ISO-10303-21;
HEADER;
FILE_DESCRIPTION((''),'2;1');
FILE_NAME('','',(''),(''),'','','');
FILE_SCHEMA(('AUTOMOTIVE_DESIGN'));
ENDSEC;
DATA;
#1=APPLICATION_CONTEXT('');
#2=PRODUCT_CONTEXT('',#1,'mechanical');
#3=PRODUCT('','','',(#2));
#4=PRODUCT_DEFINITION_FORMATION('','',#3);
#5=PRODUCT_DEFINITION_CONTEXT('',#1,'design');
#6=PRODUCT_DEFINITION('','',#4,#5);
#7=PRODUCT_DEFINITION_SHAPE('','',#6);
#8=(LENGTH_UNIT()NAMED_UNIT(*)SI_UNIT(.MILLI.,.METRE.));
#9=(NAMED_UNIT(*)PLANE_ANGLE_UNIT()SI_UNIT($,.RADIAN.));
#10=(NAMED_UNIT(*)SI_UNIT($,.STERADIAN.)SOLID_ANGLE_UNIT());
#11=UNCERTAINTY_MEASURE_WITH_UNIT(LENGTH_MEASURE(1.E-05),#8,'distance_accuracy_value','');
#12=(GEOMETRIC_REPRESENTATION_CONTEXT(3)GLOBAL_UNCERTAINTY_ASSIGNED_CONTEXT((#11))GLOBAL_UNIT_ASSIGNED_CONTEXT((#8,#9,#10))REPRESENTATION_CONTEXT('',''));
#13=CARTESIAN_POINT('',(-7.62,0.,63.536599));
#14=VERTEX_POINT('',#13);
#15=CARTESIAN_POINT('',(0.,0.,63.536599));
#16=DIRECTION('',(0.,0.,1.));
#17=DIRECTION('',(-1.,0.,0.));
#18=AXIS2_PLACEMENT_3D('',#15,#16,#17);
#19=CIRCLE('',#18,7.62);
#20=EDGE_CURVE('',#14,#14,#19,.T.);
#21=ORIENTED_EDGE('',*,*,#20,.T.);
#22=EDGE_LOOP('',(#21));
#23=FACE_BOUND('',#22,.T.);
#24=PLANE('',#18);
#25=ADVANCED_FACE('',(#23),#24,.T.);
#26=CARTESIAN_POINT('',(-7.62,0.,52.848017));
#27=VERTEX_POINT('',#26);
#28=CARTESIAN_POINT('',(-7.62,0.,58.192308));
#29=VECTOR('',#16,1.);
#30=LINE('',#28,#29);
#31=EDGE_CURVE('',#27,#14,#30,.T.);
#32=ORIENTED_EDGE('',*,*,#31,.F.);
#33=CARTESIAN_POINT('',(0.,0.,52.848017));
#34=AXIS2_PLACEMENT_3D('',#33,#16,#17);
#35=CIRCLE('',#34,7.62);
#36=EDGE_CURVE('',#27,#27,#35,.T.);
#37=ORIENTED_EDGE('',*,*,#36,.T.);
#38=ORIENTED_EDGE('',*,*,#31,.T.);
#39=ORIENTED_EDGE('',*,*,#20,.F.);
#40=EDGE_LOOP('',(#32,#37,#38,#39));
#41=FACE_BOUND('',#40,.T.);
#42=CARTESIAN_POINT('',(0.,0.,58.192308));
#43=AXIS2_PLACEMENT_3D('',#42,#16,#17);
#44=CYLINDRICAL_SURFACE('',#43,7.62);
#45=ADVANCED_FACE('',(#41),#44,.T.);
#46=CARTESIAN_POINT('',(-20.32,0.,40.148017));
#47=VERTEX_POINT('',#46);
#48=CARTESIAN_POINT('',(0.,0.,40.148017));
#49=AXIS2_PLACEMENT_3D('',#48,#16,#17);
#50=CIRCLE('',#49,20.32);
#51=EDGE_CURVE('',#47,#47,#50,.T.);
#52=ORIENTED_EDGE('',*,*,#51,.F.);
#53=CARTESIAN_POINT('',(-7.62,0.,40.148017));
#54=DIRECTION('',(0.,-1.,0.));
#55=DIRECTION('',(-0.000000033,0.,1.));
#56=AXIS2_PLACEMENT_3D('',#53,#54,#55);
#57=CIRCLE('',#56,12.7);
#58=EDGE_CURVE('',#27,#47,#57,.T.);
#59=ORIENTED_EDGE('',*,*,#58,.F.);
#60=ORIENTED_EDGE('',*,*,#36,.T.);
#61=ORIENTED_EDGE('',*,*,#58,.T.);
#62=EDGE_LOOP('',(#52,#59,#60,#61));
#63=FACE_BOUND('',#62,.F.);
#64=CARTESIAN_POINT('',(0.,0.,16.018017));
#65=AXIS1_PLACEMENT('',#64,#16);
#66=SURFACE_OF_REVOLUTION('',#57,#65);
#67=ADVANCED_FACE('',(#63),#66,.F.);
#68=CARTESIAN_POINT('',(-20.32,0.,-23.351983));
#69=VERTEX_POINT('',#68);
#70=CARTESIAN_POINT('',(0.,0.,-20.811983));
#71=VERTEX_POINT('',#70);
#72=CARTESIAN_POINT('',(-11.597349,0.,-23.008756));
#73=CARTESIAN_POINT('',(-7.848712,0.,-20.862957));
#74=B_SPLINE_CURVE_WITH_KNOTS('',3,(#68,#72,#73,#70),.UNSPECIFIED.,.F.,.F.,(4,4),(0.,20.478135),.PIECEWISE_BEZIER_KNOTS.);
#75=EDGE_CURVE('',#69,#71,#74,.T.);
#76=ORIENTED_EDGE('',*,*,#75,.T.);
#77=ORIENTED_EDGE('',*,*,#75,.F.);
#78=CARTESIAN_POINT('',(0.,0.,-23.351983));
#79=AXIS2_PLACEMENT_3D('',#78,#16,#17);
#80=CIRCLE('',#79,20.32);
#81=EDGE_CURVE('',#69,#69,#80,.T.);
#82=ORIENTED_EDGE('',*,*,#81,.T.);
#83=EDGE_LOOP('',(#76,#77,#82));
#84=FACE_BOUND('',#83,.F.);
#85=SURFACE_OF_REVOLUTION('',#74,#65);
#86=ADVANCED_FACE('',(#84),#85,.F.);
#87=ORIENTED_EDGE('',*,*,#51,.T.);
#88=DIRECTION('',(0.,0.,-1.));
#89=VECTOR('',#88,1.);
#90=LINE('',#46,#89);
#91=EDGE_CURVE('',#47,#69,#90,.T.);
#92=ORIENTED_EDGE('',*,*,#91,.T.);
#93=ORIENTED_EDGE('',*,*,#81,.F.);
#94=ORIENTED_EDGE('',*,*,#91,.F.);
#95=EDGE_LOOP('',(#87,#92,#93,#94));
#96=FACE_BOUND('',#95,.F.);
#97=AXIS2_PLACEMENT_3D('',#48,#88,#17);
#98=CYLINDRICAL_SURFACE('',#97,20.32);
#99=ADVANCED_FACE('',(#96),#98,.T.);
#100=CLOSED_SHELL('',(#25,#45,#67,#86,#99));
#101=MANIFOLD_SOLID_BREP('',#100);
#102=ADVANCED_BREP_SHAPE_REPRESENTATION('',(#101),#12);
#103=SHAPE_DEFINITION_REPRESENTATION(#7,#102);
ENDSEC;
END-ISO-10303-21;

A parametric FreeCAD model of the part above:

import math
import FreeCAD as App
import Part
import Sketcher

V = App.Vector
Q = App.Units.Quantity

doc = App.newDocument("Part")
body = doc.addObject("PartDesign::Body", "Body")

# Sketch on XZ plane
sketch1 = doc.addObject("Sketcher::SketchObject", "Sketch")
body.addObject(sketch1)
sketch1.AttachmentSupport = (doc.XZ_Plane, [""])
sketch1.MapMode = "FlatFace"
sketch1.addGeometry([
    Part.BSplineCurve([V(-20.32, -23.351983, 0), V(-11.597349, -23.008756, 0), V(-7.848712, -20.862957, 0), V(0, -20.811983, 0)], [4, 4], [0, 20.478135], False, 3, [1, 1, 1, 1], False),  # 0
    Part.LineSegment(V(0, -20.811983, 0), V(0, 63.536599, 0)),  # 1
    Part.LineSegment(V(0, 63.536599, 0), V(-7.62, 63.536599, 0)),  # 2
    Part.LineSegment(V(-7.62, 63.536599, 0), V(-7.62, 52.848017, 0)),  # 3
    Part.ArcOfCircle(Part.Circle(V(-7.62, 40.148017, 0), V(0, 0, 1), 12.7), math.radians(90.000002), math.radians(179.999998)),  # 4
    Part.LineSegment(V(-20.32, 40.148017, 0), V(-20.32, -23.351983, 0)),  # 5
], False)
sketch1.addConstraint([
    Sketcher.Constraint("Block", 0),
    Sketcher.Constraint("Coincident", 0, 2, 1, 1),
    Sketcher.Constraint("Coincident", 1, 2, 2, 1),
    Sketcher.Constraint("Coincident", 2, 2, 3, 1),
    Sketcher.Constraint("Coincident", 3, 2, 4, 1),
    Sketcher.Constraint("Tangent", 4, 2, 5, 1),
    Sketcher.Constraint("Coincident", 5, 2, 0, 1),
    Sketcher.Constraint("Vertical", 1),
    Sketcher.Constraint("Horizontal", 2),
    Sketcher.Constraint("Vertical", 3),
    Sketcher.Constraint("Vertical", 5),
    Sketcher.Constraint("Vertical", 4, 3, 2, 2),
    Sketcher.Constraint("Radius", 4, Q("0.5 in")),
    Sketcher.Constraint("DistanceY", 5, 2, 5, 1, Q("2.5 in")),
    Sketcher.Constraint("DistanceY", -1, 1, 1, 2, Q("63.536599 mm")),
])
revolution = doc.addObject("PartDesign::Revolution", "Revolution")
body.addObject(revolution)
revolution.Profile = sketch1
revolution.ReferenceAxis = (sketch1, ["V_Axis"])
revolution.Angle = 360

doc.recompute()
